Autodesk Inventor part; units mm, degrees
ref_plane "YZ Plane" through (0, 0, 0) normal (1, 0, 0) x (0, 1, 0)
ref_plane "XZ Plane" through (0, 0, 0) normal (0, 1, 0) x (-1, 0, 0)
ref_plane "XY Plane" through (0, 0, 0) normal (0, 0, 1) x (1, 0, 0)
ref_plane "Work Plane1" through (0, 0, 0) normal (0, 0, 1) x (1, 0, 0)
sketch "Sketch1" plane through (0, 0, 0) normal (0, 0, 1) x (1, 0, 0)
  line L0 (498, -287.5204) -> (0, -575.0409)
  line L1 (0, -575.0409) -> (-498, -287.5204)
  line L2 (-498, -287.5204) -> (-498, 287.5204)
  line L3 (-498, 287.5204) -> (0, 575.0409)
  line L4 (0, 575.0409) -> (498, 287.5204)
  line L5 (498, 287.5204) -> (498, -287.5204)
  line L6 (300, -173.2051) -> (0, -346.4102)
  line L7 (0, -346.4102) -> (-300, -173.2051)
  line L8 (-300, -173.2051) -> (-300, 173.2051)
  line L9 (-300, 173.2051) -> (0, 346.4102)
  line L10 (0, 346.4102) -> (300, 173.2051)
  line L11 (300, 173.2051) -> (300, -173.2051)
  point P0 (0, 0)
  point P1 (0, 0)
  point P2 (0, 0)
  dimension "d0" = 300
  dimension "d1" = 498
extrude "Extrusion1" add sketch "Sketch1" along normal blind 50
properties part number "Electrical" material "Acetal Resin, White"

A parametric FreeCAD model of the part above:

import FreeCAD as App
import Part
import Sketcher

V = App.Vector
Q = App.Units.Quantity


def add_polygon(sketch, points):
    """Adds a closed chain of lines whose ends are joined by coincident constraints."""
    first, n = sketch.GeometryCount, len(points)
    for a, b in zip(points, points[1:] + points[:1]):
        sketch.addGeometry(Part.LineSegment(App.Vector(*a, 0), App.Vector(*b, 0)), False)
    for i in range(n):
        sketch.addConstraint(Sketcher.Constraint("Coincident", first + i, 2, first + (i + 1) % n, 1))

doc = App.newDocument("Part")
body = doc.addObject("PartDesign::Body", "Body")

# Sketch on XY plane
sketch1 = doc.addObject("Sketcher::SketchObject", "Sketch")
body.addObject(sketch1)
sketch1.AttachmentSupport = (doc.XY_Plane, [""])
sketch1.MapMode = "FlatFace"
add_polygon(sketch1, [(0, -575), (498, -288), (498, 288), (0, 575), (-498, 288), (-498, -288)])  # lines 0-5
add_polygon(sketch1, [(300, 173), (300, -173), (0, -346), (-300, -173), (-300, 173), (0, 346)])  # lines 6-11
sketch1.addConstraint([
    Sketcher.Constraint("Vertical", 1),
    Sketcher.Constraint("Vertical", 4),
    Sketcher.Constraint("Vertical", 6),
    Sketcher.Constraint("Vertical", 9),
    Sketcher.Constraint("Symmetric", 0, 2, 3, 2, -1, 1),
    Sketcher.Constraint("Symmetric", 2, 2, 5, 2, -1, 1),
    Sketcher.Constraint("Symmetric", 6, 2, 9, 2, -1, 1),
    Sketcher.Constraint("Symmetric", 7, 2, 10, 2, -1, 1),
    Sketcher.Constraint("PointOnObject", 2, 2, -2),
    Sketcher.Constraint("PointOnObject", 7, 2, -2),
    Sketcher.Constraint("Parallel", 2, 5),
    Sketcher.Constraint("Parallel", 3, 7),
    Sketcher.Constraint("Parallel", 5, 8),
    Sketcher.Constraint("Parallel", 8, 11),
    Sketcher.Constraint("Horizontal", 1, 2, 3, 2),
    Sketcher.Constraint("DistanceX", -1, 1, 0, 2, 498.0),
    Sketcher.Constraint("DistanceX", -1, 1, 6, 2, 300.0),
    Sketcher.Constraint("Angle", 0, Q("30 deg")),
    Sketcher.Constraint("DistanceY", 1, 1, 1, 2, 575.0408),
    Sketcher.Constraint("DistanceY", 6, 2, 6, 1, 346.4102),
])
pad1 = doc.addObject("PartDesign::Pad", "Pad")
body.addObject(pad1)
pad1.Profile = sketch1
pad1.Length = 50

doc.recompute()
